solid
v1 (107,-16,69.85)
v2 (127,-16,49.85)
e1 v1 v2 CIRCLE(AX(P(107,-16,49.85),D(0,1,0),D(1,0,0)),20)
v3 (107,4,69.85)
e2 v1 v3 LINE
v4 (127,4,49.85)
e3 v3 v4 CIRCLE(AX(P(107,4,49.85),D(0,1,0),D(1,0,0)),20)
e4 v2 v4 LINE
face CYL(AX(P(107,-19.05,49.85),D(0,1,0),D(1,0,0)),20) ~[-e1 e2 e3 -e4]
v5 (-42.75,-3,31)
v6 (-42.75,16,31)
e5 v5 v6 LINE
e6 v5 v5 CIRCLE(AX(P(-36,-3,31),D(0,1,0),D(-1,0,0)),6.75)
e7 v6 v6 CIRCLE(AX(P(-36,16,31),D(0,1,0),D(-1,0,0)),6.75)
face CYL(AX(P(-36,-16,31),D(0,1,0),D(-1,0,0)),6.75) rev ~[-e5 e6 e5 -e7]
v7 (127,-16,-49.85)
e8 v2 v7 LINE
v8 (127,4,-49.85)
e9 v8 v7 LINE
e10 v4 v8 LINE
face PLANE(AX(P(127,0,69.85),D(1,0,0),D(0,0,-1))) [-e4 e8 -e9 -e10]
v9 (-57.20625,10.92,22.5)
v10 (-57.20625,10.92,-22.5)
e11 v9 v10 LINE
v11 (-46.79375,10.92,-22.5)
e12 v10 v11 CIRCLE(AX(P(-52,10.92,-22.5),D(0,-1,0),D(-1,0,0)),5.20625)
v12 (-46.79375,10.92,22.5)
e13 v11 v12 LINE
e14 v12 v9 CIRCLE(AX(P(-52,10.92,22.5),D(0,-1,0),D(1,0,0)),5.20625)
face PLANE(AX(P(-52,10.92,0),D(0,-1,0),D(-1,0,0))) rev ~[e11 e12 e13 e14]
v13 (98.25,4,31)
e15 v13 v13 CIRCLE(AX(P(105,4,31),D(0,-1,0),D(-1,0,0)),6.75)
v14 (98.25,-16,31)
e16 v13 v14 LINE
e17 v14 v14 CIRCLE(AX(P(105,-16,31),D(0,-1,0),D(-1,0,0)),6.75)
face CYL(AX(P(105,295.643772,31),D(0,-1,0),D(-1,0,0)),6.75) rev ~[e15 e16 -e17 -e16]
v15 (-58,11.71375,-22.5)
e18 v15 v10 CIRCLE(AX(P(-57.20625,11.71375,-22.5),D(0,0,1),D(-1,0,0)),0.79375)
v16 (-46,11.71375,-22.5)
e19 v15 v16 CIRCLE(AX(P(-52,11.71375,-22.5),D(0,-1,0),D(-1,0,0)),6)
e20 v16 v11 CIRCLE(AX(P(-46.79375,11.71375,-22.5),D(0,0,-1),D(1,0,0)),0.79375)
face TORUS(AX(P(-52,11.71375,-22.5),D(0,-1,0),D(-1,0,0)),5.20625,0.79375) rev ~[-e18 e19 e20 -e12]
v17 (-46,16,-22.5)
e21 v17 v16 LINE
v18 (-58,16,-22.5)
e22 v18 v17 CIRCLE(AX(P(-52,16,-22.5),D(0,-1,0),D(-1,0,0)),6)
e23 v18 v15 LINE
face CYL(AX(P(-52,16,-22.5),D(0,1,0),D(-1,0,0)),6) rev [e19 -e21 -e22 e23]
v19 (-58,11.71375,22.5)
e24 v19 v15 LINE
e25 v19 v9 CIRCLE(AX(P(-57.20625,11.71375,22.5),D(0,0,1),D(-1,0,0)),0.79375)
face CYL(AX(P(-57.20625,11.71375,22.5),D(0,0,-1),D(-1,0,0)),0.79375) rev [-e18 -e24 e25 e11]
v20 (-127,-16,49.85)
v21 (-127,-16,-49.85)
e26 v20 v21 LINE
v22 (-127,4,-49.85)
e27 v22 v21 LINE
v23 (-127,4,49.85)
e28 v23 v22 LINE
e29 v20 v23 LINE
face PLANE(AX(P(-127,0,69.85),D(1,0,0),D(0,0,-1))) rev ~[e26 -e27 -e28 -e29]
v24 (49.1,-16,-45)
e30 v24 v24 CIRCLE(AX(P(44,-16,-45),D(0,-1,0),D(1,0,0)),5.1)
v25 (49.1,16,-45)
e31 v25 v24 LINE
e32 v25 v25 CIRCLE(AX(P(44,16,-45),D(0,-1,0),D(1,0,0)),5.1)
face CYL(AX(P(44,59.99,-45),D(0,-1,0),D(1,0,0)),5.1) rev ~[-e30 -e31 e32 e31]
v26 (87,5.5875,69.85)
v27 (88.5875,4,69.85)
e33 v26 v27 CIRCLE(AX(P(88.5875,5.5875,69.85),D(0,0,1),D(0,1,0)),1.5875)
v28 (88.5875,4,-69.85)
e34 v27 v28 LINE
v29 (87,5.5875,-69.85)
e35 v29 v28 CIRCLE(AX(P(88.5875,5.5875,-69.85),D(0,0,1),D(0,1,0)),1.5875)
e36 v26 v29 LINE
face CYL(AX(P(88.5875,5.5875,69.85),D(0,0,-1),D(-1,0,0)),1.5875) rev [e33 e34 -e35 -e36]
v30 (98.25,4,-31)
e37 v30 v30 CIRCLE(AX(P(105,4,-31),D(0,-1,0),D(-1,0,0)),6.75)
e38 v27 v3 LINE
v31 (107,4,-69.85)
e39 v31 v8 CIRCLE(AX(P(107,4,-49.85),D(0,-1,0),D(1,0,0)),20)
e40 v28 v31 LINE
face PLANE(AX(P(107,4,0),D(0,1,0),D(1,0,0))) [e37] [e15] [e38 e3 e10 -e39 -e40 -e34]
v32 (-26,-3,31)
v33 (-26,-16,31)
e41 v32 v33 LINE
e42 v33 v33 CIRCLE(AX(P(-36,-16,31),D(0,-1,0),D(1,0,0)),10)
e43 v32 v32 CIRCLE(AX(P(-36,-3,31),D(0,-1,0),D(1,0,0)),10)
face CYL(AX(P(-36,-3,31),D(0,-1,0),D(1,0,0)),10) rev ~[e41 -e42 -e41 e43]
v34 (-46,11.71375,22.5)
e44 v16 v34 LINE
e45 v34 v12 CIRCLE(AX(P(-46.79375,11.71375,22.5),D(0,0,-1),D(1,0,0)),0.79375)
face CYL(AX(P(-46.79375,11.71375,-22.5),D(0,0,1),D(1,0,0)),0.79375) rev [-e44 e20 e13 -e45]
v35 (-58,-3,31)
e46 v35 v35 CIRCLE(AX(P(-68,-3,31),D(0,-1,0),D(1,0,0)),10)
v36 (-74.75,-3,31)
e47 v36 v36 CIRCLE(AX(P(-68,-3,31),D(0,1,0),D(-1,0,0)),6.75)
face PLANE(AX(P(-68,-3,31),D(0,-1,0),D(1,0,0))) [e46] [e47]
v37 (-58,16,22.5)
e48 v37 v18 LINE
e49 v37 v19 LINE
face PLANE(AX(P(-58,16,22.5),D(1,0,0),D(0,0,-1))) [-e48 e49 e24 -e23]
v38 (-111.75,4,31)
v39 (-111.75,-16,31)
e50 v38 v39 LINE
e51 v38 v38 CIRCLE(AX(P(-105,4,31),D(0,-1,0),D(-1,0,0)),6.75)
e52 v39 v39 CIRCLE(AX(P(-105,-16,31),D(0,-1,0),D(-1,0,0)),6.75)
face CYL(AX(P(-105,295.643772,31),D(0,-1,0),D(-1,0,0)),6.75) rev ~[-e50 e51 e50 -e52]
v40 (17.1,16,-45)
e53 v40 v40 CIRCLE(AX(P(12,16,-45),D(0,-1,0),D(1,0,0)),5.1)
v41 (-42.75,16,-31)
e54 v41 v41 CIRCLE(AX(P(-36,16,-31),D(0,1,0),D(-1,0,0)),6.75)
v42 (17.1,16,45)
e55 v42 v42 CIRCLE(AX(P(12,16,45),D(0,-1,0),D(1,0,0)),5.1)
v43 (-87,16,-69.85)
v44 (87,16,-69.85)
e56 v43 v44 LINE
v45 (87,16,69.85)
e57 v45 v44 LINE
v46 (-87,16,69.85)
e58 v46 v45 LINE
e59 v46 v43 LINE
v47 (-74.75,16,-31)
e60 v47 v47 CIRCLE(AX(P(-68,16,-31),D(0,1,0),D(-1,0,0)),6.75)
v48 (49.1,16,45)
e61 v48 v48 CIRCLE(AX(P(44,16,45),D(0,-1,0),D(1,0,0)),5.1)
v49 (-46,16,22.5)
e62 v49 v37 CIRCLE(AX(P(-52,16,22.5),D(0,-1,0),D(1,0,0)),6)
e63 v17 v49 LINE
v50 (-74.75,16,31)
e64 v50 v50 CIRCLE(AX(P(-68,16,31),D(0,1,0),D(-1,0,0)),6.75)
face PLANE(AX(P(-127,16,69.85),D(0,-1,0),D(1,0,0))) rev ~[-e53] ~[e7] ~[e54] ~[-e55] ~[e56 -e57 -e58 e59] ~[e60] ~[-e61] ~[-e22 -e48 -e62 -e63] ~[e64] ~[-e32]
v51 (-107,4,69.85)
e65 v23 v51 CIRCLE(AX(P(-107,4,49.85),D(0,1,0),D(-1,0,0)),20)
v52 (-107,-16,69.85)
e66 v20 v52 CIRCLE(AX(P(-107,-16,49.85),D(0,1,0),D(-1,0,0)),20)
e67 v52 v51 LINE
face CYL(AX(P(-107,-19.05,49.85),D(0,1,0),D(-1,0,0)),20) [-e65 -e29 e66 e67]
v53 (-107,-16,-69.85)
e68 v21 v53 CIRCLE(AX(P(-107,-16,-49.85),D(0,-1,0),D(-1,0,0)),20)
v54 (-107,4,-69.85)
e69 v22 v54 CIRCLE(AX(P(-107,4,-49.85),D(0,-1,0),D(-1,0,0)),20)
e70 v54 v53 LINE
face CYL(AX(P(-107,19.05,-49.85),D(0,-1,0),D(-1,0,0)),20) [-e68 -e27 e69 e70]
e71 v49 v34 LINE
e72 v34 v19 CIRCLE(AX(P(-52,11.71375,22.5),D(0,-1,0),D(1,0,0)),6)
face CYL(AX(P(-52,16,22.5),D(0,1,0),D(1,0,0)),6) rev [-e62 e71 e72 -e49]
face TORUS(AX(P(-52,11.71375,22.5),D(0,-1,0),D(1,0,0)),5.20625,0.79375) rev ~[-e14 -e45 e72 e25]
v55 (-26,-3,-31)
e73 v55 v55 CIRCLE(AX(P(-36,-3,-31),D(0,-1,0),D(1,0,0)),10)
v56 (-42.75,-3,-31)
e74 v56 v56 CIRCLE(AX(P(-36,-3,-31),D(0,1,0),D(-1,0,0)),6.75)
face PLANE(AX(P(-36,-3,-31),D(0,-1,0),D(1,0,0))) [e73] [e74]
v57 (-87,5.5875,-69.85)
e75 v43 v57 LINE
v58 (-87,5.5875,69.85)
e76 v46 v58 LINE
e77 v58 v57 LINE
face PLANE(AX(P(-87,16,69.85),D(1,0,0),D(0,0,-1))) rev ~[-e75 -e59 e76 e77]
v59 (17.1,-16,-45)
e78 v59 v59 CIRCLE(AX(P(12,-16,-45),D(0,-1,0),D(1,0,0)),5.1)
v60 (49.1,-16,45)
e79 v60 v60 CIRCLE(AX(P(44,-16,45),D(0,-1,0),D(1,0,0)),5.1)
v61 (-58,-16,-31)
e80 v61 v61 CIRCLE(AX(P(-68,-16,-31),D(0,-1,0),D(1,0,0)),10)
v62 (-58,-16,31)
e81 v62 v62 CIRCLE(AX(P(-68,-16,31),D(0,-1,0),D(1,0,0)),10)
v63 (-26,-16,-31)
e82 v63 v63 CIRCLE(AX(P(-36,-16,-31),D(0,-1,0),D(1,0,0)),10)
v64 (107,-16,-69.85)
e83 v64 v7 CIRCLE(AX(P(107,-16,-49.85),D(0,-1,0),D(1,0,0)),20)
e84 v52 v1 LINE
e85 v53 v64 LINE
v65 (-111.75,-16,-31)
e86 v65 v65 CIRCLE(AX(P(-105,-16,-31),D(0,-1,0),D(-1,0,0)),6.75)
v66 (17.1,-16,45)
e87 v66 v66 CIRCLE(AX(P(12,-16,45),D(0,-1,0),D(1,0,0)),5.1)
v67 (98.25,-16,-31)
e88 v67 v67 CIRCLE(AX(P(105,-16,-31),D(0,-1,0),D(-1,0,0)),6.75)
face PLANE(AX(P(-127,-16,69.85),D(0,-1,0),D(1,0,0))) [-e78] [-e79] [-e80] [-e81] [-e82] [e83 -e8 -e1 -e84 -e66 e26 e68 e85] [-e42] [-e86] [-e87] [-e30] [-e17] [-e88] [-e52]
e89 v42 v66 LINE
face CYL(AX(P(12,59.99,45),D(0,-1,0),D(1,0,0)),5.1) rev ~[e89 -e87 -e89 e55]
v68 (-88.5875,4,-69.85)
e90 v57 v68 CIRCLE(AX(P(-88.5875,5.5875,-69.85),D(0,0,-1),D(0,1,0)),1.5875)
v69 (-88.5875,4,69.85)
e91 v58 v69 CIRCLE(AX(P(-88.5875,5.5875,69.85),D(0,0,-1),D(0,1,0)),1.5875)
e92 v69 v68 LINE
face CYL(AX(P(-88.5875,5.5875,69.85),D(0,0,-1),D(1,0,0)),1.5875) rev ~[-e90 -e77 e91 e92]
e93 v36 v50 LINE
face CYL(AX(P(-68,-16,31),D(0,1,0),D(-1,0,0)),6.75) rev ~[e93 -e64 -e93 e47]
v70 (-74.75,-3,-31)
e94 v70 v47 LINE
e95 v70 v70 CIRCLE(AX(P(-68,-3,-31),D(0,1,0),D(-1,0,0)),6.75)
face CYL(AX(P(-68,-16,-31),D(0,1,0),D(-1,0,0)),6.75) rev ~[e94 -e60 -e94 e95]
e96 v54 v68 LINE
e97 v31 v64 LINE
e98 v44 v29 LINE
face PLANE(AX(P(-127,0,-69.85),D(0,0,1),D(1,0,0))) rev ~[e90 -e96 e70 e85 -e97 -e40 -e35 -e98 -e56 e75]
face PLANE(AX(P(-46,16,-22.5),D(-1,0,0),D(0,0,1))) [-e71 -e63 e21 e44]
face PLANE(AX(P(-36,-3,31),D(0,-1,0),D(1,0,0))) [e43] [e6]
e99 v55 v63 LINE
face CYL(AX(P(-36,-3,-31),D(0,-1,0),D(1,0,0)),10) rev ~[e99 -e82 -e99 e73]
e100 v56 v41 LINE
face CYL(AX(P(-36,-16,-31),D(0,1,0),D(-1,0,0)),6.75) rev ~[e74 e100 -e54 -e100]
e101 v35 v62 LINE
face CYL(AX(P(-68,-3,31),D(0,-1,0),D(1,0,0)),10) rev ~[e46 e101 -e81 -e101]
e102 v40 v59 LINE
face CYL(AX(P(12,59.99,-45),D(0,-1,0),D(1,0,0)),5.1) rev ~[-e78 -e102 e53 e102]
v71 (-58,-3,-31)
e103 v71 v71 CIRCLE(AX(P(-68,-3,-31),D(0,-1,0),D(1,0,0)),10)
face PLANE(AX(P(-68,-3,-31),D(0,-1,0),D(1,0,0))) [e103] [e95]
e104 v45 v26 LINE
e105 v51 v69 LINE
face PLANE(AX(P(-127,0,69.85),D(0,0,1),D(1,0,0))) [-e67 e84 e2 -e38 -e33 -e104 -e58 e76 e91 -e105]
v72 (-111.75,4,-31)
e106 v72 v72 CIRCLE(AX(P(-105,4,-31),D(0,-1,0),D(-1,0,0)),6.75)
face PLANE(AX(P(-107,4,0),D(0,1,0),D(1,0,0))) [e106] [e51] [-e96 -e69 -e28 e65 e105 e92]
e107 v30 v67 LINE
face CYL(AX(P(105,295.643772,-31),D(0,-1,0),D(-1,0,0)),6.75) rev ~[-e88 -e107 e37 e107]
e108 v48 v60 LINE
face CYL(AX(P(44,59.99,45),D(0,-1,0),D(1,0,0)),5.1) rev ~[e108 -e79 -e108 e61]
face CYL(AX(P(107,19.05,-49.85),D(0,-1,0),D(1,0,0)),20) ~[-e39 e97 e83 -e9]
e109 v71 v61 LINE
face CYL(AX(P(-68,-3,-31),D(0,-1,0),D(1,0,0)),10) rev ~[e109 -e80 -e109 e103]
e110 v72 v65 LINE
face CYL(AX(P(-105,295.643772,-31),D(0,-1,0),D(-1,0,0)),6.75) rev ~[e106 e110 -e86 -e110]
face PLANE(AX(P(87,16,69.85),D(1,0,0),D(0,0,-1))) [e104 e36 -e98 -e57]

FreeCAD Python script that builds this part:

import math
import FreeCAD as App
import Part
import Sketcher
from FreeCAD import Vector


def edges_at(feature, points):
    """Names of the edges that pass closest to the given points."""
    edges = feature.Shape.Edges
    near = lambda p: min(range(len(edges)), key=lambda i: edges[i].distToShape(Part.Vertex(*p))[0])
    return sorted({f"Edge{near(p) + 1}" for p in points})

doc = App.newDocument("Part")
body = doc.addObject("PartDesign::Body", "Body")

sketch1 = body.newObject("Sketcher::SketchObject", "Sketch")
sketch1.AttachmentSupport = (doc.getObject("XZ_Plane"), [""])
sketch1.MapMode = "FlatFace"
sketch1.addGeometry([
    Part.LineSegment(Vector(-127, -70, 0), Vector(-127, 70, 0)),
    Part.LineSegment(Vector(-127, 70, 0), Vector(127, 70, 0)),
    Part.LineSegment(Vector(127, 70, 0), Vector(127, -70, 0)),
    Part.LineSegment(Vector(127, -70, 0), Vector(-127, -70, 0)),
], False)
sketch1.addConstraint([
    Sketcher.Constraint("Coincident", 0, 2, 1, 1),
    Sketcher.Constraint("Coincident", 1, 2, 2, 1),
    Sketcher.Constraint("Coincident", 2, 2, 3, 1),
    Sketcher.Constraint("Coincident", 3, 2, 0, 1),
    Sketcher.Constraint("Vertical", 0),
    Sketcher.Constraint("Horizontal", 1),
    Sketcher.Constraint("Vertical", 2),
    Sketcher.Constraint("Horizontal", 3),
    Sketcher.Constraint("Symmetric", 0, 2, 2, 2, -1, 1),
    Sketcher.Constraint("DistanceX", 1, 1, 1, 2, 254.0),
    Sketcher.Constraint("DistanceY", 0, 1, 0, 2, 139.7),
])
pad1 = body.newObject("PartDesign::Pad", "Pad")
pad1.Profile = sketch1
pad1.Length = 38.1
pad1.Midplane = True
doc.recompute()

fillet = body.newObject("PartDesign::Fillet", "Fillet")
fillet.Base = (pad1, edges_at(pad1, [
    (-127, 0, -69.85),
    (127, 0, -69.85),
    (127, 0, 69.85),
    (-127, 0, 69.85),
]))
fillet.Radius = 20

sketch2 = body.newObject("Sketcher::SketchObject", "Sketch001")
sketch2.AttachmentSupport = (doc.getObject("XY_Plane"), [""])
sketch2.MapMode = "FlatFace"
sketch2.AttachmentOffset = App.Placement(Vector(0, 0, 69.85), App.Rotation())
sketch2.addGeometry([
    Part.LineSegment(Vector(-127, 19.1, 0), Vector(-127, 16, 0)),
    Part.LineSegment(Vector(-127, 16, 0), Vector(127, 16, 0)),
    Part.LineSegment(Vector(127, 16, 0), Vector(127, 19.1, 0)),
    Part.LineSegment(Vector(127, 19.1, 0), Vector(-127, 19.1, 0)),
    Part.LineSegment(Vector(-127, -16, 0), Vector(-127, -19.1, 0)),
    Part.LineSegment(Vector(-127, -19.1, 0), Vector(127, -19.1, 0)),
    Part.LineSegment(Vector(127, -19.1, 0), Vector(127, -16, 0)),
    Part.LineSegment(Vector(127, -16, 0), Vector(-127, -16, 0)),
], False)
sketch2.addConstraint([
    Sketcher.Constraint("Coincident", 0, 2, 1, 1),
    Sketcher.Constraint("Coincident", 1, 2, 2, 1),
    Sketcher.Constraint("Coincident", 2, 2, 3, 1),
    Sketcher.Constraint("Coincident", 3, 2, 0, 1),
    Sketcher.Constraint("Coincident", 4, 2, 5, 1),
    Sketcher.Constraint("Coincident", 5, 2, 6, 1),
    Sketcher.Constraint("Coincident", 6, 2, 7, 1),
    Sketcher.Constraint("Coincident", 7, 2, 4, 1),
    Sketcher.Constraint("Vertical", 0),
    Sketcher.Constraint("Horizontal", 1),
    Sketcher.Constraint("Vertical", 2),
    Sketcher.Constraint("Horizontal", 3),
    Sketcher.Constraint("Vertical", 4),
    Sketcher.Constraint("Horizontal", 5),
    Sketcher.Constraint("Vertical", 6),
    Sketcher.Constraint("Horizontal", 7),
    Sketcher.Constraint("Symmetric", 2, 2, 4, 2, -1, 1),
    Sketcher.Constraint("Symmetric", 0, 2, 6, 2, -1, 1),
    Sketcher.Constraint("Vertical", 3, 2, 4, 2),
    Sketcher.Constraint("DistanceX", 1, 1, 1, 2, 254.0),
    Sketcher.Constraint("DistanceY", -1, 1, 0, 2, 16.0),
    Sketcher.Constraint("DistanceY", 0, 2, 0, 1, 3.05),
])
pocket1 = body.newObject("PartDesign::Pocket", "Pocket")
pocket1.Profile = sketch2
pocket1.Type = "ThroughAll"

sketch3 = body.newObject("Sketcher::SketchObject", "Sketch002")
sketch3.AttachmentSupport = (doc.getObject("XZ_Plane"), [""])
sketch3.MapMode = "FlatFace"
sketch3.AttachmentOffset = App.Placement(Vector(0, 0, -16), App.Rotation())
sketch3.addGeometry([
    Part.LineSegment(Vector(-127, -70, 0), Vector(-127, 70, 0)),
    Part.LineSegment(Vector(-127, 70, 0), Vector(-87, 70, 0)),
    Part.LineSegment(Vector(-87, 70, 0), Vector(-87, -70, 0)),
    Part.LineSegment(Vector(-87, -70, 0), Vector(-127, -70, 0)),
    Part.LineSegment(Vector(87, -70, 0), Vector(87, 70, 0)),
    Part.LineSegment(Vector(87, 70, 0), Vector(127, 70, 0)),
    Part.LineSegment(Vector(127, 70, 0), Vector(127, -70, 0)),
    Part.LineSegment(Vector(127, -70, 0), Vector(87, -70, 0)),
], False)
sketch3.addConstraint([
    Sketcher.Constraint("Coincident", 0, 2, 1, 1),
    Sketcher.Constraint("Coincident", 1, 2, 2, 1),
    Sketcher.Constraint("Coincident", 2, 2, 3, 1),
    Sketcher.Constraint("Coincident", 3, 2, 0, 1),
    Sketcher.Constraint("Coincident", 4, 2, 5, 1),
    Sketcher.Constraint("Coincident", 5, 2, 6, 1),
    Sketcher.Constraint("Coincident", 6, 2, 7, 1),
    Sketcher.Constraint("Coincident", 7, 2, 4, 1),
    Sketcher.Constraint("Vertical", 0),
    Sketcher.Constraint("Horizontal", 1),
    Sketcher.Constraint("Vertical", 2),
    Sketcher.Constraint("Horizontal", 3),
    Sketcher.Constraint("Vertical", 4),
    Sketcher.Constraint("Horizontal", 5),
    Sketcher.Constraint("Vertical", 6),
    Sketcher.Constraint("Horizontal", 7),
    Sketcher.Constraint("Symmetric", 2, 2, 4, 2, -1, 1),
    Sketcher.Constraint("Symmetric", 0, 2, 6, 2, -1, 1),
    Sketcher.Constraint("Horizontal", 1, 2, 4, 2),
    Sketcher.Constraint("DistanceX", 1, 1, 1, 2, 40.0),
    Sketcher.Constraint("DistanceY", 0, 1, 0, 2, 139.7),
    Sketcher.Constraint("DistanceX", 0, 2, -1, 1, 127.0),
])
pocket2 = body.newObject("PartDesign::Pocket", "Pocket001")
pocket2.Profile = sketch3
pocket2.Length = 12
pocket2.Reversed = True

sketch4 = body.newObject("Sketcher::SketchObject", "Sketch003")
sketch4.AttachmentSupport = (doc.getObject("XZ_Plane"), [""])
sketch4.MapMode = "FlatFace"
sketch4.AttachmentOffset = App.Placement(Vector(0, 0, -16), App.Rotation())
sketch4.addGeometry([
    Part.Circle(Vector(12, 45, 0), Vector(0, 0, 1), 5),
    Part.Circle(Vector(12, -45, 0), Vector(0, 0, 1), 5),
    Part.Circle(Vector(44, -45, 0), Vector(0, 0, 1), 5),
    Part.Circle(Vector(44, 45, 0), Vector(0, 0, 1), 5),
], False)
sketch4.addConstraint([
    Sketcher.Constraint("Equal", 0, 1),
    Sketcher.Constraint("Equal", 1, 2),
    Sketcher.Constraint("Equal", 2, 3),
    Sketcher.Constraint("Symmetric", 0, 3, 1, 3, -1),
    Sketcher.Constraint("Symmetric", 2, 3, 3, 3, -1),
    Sketcher.Constraint("Horizontal", 1, 3, 2, 3),
    Sketcher.Constraint("Diameter", 0, 10.2),
    Sketcher.Constraint("DistanceX", -1, 1, 0, 3, 12.0),
    Sketcher.Constraint("DistanceY", -1, 1, 0, 3, 45.0),
    Sketcher.Constraint("DistanceX", -1, 1, 2, 3, 44.0),
])
doc.recompute()
hole = body.newObject("PartDesign::Hole", "Hole")
hole.Profile = sketch4
hole.ThreadType = "None"
hole.Diameter = 10.2
hole.DepthType = "Dimension"
hole.Depth = 43.99
hole.DrillPoint = "Angled"
hole.DrillPointAngle = 118
hole.Reversed = True

sketch5 = body.newObject("Sketcher::SketchObject", "Sketch004")
sketch5.AttachmentSupport = (doc.getObject("XZ_Plane"), [""])
sketch5.MapMode = "FlatFace"
sketch5.AttachmentOffset = App.Placement(Vector(0, 0, -4), App.Rotation())
sketch5.addGeometry([
    Part.Circle(Vector(-105, -31, 0), Vector(0, 0, 1), 7),
    Part.Circle(Vector(-105, 31, 0), Vector(0, 0, 1), 7),
    Part.Circle(Vector(105, -31, 0), Vector(0, 0, 1), 7),
    Part.Circle(Vector(105, 31, 0), Vector(0, 0, 1), 7),
], False)
sketch5.addConstraint([
    Sketcher.Constraint("Equal", 0, 1),
    Sketcher.Constraint("Equal", 1, 2),
    Sketcher.Constraint("Equal", 2, 3),
    Sketcher.Constraint("Symmetric", 1, 3, 2, 3, -1, 1),
    Sketcher.Constraint("Symmetric", 0, 3, 3, 3, -1, 1),
    Sketcher.Constraint("Symmetric", 0, 3, 2, 3, -2),
    Sketcher.Constraint("Diameter", 0, 13.5),
    Sketcher.Constraint("DistanceX", 0, 3, -1, 1, 105.0),
    Sketcher.Constraint("DistanceY", 0, 3, -1, 1, 31.0),
])
doc.recompute()
hole2 = body.newObject("PartDesign::Hole", "Hole001")
hole2.Profile = sketch5
hole2.ThreadType = "None"
hole2.Diameter = 13.5
hole2.DepthType = "ThroughAll"
hole2.Reversed = True

sketch6 = body.newObject("Sketcher::SketchObject", "Sketch005")
sketch6.AttachmentSupport = (doc.getObject("XZ_Plane"), [""])
sketch6.MapMode = "FlatFace"
sketch6.AttachmentOffset = App.Placement(Vector(0, 0, 16), App.Rotation())
sketch6.addGeometry([
    Part.Circle(Vector(-36, -31, 0), Vector(0, 0, 1), 7),
    Part.Circle(Vector(-68, 31, 0), Vector(0, 0, 1), 7),
    Part.Circle(Vector(-36, 31, 0), Vector(0, 0, 1), 7),
    Part.Circle(Vector(-68, -31, 0), Vector(0, 0, 1), 7),
], False)
sketch6.addConstraint([
    Sketcher.Constraint("Equal", 0, 1),
    Sketcher.Constraint("Equal", 1, 2),
    Sketcher.Constraint("Equal", 2, 3),
    Sketcher.Constraint("Symmetric", 0, 3, 2, 3, -1),
    Sketcher.Constraint("Symmetric", 1, 3, 3, 3, -1),
    Sketcher.Constraint("Horizontal", 1, 3, 2, 3),
    Sketcher.Constraint("Diameter", 0, 13.5),
    Sketcher.Constraint("DistanceX", 0, 3, -1, 1, 36.0),
    Sketcher.Constraint("DistanceY", 0, 3, -1, 1, 31.0),
    Sketcher.Constraint("DistanceX", 1, 3, -1, 1, 68.0),
])
doc.recompute()
hole3 = body.newObject("PartDesign::Hole", "Hole002")
hole3.Profile = sketch6
hole3.ThreadType = "None"
hole3.Diameter = 13.5
hole3.DepthType = "ThroughAll"
hole3.HoleCutType = "Counterbore"
hole3.HoleCutDiameter = 20
hole3.HoleCutDepth = 13

sketch7 = body.newObject("Sketcher::SketchObject", "Sketch006")
sketch7.AttachmentSupport = (doc.getObject("XZ_Plane"), [""])
sketch7.MapMode = "FlatFace"
sketch7.AttachmentOffset = App.Placement(Vector(0, 0, -16), App.Rotation())
sketch7.addGeometry([
    Part.LineSegment(Vector(-46, 22, 0), Vector(-46, -22, 0)),
    Part.ArcOfCircle(Part.Circle(Vector(-52, -22, 0), Vector(0, 0, 1), 6), math.radians(180), math.radians(360)),
    Part.LineSegment(Vector(-58, -22, 0), Vector(-58, 22, 0)),
    Part.ArcOfCircle(Part.Circle(Vector(-52, 22, 0), Vector(0, 0, 1), 6), math.radians(0), math.radians(180)),
], False)
sketch7.addConstraint([
    Sketcher.Constraint("Tangent", 0, 2, 1, 2),
    Sketcher.Constraint("Tangent", 1, 1, 2, 1),
    Sketcher.Constraint("Tangent", 2, 2, 3, 2),
    Sketcher.Constraint("Tangent", 3, 1, 0, 1),
    Sketcher.Constraint("Vertical", 0),
    Sketcher.Constraint("Vertical", 2),
    Sketcher.Constraint("Radius", 1, 6.0),
    Sketcher.Constraint("DistanceY", 0, 2, 0, 1, 45.0),
    Sketcher.Constraint("DistanceX", 1, 3, -1, 1, 52.0),
    Sketcher.Constraint("DistanceY", 1, 3, -1, 1, 22.5),
])
pocket3 = body.newObject("PartDesign::Pocket", "Pocket002")
pocket3.Profile = sketch7
pocket3.Length = 5.08
pocket3.Reversed = True
doc.recompute()

fillet2 = body.newObject("PartDesign::Fillet", "Fillet001")
fillet2.Base = (pocket3, edges_at(pocket3, [
    (-52, 10.92, -28.5),
    (-46, 10.92, 0),
    (-52, 10.92, 28.5),
    (-58, 10.92, 0),
]))
fillet2.Radius = 0.79375
doc.recompute()

fillet3 = body.newObject("PartDesign::Fillet", "Fillet002")
fillet3.Base = (fillet2, edges_at(fillet2, [(-87, 4, 0), (87, 4, 0)]))
fillet3.Radius = 1.5875

doc.recompute()
